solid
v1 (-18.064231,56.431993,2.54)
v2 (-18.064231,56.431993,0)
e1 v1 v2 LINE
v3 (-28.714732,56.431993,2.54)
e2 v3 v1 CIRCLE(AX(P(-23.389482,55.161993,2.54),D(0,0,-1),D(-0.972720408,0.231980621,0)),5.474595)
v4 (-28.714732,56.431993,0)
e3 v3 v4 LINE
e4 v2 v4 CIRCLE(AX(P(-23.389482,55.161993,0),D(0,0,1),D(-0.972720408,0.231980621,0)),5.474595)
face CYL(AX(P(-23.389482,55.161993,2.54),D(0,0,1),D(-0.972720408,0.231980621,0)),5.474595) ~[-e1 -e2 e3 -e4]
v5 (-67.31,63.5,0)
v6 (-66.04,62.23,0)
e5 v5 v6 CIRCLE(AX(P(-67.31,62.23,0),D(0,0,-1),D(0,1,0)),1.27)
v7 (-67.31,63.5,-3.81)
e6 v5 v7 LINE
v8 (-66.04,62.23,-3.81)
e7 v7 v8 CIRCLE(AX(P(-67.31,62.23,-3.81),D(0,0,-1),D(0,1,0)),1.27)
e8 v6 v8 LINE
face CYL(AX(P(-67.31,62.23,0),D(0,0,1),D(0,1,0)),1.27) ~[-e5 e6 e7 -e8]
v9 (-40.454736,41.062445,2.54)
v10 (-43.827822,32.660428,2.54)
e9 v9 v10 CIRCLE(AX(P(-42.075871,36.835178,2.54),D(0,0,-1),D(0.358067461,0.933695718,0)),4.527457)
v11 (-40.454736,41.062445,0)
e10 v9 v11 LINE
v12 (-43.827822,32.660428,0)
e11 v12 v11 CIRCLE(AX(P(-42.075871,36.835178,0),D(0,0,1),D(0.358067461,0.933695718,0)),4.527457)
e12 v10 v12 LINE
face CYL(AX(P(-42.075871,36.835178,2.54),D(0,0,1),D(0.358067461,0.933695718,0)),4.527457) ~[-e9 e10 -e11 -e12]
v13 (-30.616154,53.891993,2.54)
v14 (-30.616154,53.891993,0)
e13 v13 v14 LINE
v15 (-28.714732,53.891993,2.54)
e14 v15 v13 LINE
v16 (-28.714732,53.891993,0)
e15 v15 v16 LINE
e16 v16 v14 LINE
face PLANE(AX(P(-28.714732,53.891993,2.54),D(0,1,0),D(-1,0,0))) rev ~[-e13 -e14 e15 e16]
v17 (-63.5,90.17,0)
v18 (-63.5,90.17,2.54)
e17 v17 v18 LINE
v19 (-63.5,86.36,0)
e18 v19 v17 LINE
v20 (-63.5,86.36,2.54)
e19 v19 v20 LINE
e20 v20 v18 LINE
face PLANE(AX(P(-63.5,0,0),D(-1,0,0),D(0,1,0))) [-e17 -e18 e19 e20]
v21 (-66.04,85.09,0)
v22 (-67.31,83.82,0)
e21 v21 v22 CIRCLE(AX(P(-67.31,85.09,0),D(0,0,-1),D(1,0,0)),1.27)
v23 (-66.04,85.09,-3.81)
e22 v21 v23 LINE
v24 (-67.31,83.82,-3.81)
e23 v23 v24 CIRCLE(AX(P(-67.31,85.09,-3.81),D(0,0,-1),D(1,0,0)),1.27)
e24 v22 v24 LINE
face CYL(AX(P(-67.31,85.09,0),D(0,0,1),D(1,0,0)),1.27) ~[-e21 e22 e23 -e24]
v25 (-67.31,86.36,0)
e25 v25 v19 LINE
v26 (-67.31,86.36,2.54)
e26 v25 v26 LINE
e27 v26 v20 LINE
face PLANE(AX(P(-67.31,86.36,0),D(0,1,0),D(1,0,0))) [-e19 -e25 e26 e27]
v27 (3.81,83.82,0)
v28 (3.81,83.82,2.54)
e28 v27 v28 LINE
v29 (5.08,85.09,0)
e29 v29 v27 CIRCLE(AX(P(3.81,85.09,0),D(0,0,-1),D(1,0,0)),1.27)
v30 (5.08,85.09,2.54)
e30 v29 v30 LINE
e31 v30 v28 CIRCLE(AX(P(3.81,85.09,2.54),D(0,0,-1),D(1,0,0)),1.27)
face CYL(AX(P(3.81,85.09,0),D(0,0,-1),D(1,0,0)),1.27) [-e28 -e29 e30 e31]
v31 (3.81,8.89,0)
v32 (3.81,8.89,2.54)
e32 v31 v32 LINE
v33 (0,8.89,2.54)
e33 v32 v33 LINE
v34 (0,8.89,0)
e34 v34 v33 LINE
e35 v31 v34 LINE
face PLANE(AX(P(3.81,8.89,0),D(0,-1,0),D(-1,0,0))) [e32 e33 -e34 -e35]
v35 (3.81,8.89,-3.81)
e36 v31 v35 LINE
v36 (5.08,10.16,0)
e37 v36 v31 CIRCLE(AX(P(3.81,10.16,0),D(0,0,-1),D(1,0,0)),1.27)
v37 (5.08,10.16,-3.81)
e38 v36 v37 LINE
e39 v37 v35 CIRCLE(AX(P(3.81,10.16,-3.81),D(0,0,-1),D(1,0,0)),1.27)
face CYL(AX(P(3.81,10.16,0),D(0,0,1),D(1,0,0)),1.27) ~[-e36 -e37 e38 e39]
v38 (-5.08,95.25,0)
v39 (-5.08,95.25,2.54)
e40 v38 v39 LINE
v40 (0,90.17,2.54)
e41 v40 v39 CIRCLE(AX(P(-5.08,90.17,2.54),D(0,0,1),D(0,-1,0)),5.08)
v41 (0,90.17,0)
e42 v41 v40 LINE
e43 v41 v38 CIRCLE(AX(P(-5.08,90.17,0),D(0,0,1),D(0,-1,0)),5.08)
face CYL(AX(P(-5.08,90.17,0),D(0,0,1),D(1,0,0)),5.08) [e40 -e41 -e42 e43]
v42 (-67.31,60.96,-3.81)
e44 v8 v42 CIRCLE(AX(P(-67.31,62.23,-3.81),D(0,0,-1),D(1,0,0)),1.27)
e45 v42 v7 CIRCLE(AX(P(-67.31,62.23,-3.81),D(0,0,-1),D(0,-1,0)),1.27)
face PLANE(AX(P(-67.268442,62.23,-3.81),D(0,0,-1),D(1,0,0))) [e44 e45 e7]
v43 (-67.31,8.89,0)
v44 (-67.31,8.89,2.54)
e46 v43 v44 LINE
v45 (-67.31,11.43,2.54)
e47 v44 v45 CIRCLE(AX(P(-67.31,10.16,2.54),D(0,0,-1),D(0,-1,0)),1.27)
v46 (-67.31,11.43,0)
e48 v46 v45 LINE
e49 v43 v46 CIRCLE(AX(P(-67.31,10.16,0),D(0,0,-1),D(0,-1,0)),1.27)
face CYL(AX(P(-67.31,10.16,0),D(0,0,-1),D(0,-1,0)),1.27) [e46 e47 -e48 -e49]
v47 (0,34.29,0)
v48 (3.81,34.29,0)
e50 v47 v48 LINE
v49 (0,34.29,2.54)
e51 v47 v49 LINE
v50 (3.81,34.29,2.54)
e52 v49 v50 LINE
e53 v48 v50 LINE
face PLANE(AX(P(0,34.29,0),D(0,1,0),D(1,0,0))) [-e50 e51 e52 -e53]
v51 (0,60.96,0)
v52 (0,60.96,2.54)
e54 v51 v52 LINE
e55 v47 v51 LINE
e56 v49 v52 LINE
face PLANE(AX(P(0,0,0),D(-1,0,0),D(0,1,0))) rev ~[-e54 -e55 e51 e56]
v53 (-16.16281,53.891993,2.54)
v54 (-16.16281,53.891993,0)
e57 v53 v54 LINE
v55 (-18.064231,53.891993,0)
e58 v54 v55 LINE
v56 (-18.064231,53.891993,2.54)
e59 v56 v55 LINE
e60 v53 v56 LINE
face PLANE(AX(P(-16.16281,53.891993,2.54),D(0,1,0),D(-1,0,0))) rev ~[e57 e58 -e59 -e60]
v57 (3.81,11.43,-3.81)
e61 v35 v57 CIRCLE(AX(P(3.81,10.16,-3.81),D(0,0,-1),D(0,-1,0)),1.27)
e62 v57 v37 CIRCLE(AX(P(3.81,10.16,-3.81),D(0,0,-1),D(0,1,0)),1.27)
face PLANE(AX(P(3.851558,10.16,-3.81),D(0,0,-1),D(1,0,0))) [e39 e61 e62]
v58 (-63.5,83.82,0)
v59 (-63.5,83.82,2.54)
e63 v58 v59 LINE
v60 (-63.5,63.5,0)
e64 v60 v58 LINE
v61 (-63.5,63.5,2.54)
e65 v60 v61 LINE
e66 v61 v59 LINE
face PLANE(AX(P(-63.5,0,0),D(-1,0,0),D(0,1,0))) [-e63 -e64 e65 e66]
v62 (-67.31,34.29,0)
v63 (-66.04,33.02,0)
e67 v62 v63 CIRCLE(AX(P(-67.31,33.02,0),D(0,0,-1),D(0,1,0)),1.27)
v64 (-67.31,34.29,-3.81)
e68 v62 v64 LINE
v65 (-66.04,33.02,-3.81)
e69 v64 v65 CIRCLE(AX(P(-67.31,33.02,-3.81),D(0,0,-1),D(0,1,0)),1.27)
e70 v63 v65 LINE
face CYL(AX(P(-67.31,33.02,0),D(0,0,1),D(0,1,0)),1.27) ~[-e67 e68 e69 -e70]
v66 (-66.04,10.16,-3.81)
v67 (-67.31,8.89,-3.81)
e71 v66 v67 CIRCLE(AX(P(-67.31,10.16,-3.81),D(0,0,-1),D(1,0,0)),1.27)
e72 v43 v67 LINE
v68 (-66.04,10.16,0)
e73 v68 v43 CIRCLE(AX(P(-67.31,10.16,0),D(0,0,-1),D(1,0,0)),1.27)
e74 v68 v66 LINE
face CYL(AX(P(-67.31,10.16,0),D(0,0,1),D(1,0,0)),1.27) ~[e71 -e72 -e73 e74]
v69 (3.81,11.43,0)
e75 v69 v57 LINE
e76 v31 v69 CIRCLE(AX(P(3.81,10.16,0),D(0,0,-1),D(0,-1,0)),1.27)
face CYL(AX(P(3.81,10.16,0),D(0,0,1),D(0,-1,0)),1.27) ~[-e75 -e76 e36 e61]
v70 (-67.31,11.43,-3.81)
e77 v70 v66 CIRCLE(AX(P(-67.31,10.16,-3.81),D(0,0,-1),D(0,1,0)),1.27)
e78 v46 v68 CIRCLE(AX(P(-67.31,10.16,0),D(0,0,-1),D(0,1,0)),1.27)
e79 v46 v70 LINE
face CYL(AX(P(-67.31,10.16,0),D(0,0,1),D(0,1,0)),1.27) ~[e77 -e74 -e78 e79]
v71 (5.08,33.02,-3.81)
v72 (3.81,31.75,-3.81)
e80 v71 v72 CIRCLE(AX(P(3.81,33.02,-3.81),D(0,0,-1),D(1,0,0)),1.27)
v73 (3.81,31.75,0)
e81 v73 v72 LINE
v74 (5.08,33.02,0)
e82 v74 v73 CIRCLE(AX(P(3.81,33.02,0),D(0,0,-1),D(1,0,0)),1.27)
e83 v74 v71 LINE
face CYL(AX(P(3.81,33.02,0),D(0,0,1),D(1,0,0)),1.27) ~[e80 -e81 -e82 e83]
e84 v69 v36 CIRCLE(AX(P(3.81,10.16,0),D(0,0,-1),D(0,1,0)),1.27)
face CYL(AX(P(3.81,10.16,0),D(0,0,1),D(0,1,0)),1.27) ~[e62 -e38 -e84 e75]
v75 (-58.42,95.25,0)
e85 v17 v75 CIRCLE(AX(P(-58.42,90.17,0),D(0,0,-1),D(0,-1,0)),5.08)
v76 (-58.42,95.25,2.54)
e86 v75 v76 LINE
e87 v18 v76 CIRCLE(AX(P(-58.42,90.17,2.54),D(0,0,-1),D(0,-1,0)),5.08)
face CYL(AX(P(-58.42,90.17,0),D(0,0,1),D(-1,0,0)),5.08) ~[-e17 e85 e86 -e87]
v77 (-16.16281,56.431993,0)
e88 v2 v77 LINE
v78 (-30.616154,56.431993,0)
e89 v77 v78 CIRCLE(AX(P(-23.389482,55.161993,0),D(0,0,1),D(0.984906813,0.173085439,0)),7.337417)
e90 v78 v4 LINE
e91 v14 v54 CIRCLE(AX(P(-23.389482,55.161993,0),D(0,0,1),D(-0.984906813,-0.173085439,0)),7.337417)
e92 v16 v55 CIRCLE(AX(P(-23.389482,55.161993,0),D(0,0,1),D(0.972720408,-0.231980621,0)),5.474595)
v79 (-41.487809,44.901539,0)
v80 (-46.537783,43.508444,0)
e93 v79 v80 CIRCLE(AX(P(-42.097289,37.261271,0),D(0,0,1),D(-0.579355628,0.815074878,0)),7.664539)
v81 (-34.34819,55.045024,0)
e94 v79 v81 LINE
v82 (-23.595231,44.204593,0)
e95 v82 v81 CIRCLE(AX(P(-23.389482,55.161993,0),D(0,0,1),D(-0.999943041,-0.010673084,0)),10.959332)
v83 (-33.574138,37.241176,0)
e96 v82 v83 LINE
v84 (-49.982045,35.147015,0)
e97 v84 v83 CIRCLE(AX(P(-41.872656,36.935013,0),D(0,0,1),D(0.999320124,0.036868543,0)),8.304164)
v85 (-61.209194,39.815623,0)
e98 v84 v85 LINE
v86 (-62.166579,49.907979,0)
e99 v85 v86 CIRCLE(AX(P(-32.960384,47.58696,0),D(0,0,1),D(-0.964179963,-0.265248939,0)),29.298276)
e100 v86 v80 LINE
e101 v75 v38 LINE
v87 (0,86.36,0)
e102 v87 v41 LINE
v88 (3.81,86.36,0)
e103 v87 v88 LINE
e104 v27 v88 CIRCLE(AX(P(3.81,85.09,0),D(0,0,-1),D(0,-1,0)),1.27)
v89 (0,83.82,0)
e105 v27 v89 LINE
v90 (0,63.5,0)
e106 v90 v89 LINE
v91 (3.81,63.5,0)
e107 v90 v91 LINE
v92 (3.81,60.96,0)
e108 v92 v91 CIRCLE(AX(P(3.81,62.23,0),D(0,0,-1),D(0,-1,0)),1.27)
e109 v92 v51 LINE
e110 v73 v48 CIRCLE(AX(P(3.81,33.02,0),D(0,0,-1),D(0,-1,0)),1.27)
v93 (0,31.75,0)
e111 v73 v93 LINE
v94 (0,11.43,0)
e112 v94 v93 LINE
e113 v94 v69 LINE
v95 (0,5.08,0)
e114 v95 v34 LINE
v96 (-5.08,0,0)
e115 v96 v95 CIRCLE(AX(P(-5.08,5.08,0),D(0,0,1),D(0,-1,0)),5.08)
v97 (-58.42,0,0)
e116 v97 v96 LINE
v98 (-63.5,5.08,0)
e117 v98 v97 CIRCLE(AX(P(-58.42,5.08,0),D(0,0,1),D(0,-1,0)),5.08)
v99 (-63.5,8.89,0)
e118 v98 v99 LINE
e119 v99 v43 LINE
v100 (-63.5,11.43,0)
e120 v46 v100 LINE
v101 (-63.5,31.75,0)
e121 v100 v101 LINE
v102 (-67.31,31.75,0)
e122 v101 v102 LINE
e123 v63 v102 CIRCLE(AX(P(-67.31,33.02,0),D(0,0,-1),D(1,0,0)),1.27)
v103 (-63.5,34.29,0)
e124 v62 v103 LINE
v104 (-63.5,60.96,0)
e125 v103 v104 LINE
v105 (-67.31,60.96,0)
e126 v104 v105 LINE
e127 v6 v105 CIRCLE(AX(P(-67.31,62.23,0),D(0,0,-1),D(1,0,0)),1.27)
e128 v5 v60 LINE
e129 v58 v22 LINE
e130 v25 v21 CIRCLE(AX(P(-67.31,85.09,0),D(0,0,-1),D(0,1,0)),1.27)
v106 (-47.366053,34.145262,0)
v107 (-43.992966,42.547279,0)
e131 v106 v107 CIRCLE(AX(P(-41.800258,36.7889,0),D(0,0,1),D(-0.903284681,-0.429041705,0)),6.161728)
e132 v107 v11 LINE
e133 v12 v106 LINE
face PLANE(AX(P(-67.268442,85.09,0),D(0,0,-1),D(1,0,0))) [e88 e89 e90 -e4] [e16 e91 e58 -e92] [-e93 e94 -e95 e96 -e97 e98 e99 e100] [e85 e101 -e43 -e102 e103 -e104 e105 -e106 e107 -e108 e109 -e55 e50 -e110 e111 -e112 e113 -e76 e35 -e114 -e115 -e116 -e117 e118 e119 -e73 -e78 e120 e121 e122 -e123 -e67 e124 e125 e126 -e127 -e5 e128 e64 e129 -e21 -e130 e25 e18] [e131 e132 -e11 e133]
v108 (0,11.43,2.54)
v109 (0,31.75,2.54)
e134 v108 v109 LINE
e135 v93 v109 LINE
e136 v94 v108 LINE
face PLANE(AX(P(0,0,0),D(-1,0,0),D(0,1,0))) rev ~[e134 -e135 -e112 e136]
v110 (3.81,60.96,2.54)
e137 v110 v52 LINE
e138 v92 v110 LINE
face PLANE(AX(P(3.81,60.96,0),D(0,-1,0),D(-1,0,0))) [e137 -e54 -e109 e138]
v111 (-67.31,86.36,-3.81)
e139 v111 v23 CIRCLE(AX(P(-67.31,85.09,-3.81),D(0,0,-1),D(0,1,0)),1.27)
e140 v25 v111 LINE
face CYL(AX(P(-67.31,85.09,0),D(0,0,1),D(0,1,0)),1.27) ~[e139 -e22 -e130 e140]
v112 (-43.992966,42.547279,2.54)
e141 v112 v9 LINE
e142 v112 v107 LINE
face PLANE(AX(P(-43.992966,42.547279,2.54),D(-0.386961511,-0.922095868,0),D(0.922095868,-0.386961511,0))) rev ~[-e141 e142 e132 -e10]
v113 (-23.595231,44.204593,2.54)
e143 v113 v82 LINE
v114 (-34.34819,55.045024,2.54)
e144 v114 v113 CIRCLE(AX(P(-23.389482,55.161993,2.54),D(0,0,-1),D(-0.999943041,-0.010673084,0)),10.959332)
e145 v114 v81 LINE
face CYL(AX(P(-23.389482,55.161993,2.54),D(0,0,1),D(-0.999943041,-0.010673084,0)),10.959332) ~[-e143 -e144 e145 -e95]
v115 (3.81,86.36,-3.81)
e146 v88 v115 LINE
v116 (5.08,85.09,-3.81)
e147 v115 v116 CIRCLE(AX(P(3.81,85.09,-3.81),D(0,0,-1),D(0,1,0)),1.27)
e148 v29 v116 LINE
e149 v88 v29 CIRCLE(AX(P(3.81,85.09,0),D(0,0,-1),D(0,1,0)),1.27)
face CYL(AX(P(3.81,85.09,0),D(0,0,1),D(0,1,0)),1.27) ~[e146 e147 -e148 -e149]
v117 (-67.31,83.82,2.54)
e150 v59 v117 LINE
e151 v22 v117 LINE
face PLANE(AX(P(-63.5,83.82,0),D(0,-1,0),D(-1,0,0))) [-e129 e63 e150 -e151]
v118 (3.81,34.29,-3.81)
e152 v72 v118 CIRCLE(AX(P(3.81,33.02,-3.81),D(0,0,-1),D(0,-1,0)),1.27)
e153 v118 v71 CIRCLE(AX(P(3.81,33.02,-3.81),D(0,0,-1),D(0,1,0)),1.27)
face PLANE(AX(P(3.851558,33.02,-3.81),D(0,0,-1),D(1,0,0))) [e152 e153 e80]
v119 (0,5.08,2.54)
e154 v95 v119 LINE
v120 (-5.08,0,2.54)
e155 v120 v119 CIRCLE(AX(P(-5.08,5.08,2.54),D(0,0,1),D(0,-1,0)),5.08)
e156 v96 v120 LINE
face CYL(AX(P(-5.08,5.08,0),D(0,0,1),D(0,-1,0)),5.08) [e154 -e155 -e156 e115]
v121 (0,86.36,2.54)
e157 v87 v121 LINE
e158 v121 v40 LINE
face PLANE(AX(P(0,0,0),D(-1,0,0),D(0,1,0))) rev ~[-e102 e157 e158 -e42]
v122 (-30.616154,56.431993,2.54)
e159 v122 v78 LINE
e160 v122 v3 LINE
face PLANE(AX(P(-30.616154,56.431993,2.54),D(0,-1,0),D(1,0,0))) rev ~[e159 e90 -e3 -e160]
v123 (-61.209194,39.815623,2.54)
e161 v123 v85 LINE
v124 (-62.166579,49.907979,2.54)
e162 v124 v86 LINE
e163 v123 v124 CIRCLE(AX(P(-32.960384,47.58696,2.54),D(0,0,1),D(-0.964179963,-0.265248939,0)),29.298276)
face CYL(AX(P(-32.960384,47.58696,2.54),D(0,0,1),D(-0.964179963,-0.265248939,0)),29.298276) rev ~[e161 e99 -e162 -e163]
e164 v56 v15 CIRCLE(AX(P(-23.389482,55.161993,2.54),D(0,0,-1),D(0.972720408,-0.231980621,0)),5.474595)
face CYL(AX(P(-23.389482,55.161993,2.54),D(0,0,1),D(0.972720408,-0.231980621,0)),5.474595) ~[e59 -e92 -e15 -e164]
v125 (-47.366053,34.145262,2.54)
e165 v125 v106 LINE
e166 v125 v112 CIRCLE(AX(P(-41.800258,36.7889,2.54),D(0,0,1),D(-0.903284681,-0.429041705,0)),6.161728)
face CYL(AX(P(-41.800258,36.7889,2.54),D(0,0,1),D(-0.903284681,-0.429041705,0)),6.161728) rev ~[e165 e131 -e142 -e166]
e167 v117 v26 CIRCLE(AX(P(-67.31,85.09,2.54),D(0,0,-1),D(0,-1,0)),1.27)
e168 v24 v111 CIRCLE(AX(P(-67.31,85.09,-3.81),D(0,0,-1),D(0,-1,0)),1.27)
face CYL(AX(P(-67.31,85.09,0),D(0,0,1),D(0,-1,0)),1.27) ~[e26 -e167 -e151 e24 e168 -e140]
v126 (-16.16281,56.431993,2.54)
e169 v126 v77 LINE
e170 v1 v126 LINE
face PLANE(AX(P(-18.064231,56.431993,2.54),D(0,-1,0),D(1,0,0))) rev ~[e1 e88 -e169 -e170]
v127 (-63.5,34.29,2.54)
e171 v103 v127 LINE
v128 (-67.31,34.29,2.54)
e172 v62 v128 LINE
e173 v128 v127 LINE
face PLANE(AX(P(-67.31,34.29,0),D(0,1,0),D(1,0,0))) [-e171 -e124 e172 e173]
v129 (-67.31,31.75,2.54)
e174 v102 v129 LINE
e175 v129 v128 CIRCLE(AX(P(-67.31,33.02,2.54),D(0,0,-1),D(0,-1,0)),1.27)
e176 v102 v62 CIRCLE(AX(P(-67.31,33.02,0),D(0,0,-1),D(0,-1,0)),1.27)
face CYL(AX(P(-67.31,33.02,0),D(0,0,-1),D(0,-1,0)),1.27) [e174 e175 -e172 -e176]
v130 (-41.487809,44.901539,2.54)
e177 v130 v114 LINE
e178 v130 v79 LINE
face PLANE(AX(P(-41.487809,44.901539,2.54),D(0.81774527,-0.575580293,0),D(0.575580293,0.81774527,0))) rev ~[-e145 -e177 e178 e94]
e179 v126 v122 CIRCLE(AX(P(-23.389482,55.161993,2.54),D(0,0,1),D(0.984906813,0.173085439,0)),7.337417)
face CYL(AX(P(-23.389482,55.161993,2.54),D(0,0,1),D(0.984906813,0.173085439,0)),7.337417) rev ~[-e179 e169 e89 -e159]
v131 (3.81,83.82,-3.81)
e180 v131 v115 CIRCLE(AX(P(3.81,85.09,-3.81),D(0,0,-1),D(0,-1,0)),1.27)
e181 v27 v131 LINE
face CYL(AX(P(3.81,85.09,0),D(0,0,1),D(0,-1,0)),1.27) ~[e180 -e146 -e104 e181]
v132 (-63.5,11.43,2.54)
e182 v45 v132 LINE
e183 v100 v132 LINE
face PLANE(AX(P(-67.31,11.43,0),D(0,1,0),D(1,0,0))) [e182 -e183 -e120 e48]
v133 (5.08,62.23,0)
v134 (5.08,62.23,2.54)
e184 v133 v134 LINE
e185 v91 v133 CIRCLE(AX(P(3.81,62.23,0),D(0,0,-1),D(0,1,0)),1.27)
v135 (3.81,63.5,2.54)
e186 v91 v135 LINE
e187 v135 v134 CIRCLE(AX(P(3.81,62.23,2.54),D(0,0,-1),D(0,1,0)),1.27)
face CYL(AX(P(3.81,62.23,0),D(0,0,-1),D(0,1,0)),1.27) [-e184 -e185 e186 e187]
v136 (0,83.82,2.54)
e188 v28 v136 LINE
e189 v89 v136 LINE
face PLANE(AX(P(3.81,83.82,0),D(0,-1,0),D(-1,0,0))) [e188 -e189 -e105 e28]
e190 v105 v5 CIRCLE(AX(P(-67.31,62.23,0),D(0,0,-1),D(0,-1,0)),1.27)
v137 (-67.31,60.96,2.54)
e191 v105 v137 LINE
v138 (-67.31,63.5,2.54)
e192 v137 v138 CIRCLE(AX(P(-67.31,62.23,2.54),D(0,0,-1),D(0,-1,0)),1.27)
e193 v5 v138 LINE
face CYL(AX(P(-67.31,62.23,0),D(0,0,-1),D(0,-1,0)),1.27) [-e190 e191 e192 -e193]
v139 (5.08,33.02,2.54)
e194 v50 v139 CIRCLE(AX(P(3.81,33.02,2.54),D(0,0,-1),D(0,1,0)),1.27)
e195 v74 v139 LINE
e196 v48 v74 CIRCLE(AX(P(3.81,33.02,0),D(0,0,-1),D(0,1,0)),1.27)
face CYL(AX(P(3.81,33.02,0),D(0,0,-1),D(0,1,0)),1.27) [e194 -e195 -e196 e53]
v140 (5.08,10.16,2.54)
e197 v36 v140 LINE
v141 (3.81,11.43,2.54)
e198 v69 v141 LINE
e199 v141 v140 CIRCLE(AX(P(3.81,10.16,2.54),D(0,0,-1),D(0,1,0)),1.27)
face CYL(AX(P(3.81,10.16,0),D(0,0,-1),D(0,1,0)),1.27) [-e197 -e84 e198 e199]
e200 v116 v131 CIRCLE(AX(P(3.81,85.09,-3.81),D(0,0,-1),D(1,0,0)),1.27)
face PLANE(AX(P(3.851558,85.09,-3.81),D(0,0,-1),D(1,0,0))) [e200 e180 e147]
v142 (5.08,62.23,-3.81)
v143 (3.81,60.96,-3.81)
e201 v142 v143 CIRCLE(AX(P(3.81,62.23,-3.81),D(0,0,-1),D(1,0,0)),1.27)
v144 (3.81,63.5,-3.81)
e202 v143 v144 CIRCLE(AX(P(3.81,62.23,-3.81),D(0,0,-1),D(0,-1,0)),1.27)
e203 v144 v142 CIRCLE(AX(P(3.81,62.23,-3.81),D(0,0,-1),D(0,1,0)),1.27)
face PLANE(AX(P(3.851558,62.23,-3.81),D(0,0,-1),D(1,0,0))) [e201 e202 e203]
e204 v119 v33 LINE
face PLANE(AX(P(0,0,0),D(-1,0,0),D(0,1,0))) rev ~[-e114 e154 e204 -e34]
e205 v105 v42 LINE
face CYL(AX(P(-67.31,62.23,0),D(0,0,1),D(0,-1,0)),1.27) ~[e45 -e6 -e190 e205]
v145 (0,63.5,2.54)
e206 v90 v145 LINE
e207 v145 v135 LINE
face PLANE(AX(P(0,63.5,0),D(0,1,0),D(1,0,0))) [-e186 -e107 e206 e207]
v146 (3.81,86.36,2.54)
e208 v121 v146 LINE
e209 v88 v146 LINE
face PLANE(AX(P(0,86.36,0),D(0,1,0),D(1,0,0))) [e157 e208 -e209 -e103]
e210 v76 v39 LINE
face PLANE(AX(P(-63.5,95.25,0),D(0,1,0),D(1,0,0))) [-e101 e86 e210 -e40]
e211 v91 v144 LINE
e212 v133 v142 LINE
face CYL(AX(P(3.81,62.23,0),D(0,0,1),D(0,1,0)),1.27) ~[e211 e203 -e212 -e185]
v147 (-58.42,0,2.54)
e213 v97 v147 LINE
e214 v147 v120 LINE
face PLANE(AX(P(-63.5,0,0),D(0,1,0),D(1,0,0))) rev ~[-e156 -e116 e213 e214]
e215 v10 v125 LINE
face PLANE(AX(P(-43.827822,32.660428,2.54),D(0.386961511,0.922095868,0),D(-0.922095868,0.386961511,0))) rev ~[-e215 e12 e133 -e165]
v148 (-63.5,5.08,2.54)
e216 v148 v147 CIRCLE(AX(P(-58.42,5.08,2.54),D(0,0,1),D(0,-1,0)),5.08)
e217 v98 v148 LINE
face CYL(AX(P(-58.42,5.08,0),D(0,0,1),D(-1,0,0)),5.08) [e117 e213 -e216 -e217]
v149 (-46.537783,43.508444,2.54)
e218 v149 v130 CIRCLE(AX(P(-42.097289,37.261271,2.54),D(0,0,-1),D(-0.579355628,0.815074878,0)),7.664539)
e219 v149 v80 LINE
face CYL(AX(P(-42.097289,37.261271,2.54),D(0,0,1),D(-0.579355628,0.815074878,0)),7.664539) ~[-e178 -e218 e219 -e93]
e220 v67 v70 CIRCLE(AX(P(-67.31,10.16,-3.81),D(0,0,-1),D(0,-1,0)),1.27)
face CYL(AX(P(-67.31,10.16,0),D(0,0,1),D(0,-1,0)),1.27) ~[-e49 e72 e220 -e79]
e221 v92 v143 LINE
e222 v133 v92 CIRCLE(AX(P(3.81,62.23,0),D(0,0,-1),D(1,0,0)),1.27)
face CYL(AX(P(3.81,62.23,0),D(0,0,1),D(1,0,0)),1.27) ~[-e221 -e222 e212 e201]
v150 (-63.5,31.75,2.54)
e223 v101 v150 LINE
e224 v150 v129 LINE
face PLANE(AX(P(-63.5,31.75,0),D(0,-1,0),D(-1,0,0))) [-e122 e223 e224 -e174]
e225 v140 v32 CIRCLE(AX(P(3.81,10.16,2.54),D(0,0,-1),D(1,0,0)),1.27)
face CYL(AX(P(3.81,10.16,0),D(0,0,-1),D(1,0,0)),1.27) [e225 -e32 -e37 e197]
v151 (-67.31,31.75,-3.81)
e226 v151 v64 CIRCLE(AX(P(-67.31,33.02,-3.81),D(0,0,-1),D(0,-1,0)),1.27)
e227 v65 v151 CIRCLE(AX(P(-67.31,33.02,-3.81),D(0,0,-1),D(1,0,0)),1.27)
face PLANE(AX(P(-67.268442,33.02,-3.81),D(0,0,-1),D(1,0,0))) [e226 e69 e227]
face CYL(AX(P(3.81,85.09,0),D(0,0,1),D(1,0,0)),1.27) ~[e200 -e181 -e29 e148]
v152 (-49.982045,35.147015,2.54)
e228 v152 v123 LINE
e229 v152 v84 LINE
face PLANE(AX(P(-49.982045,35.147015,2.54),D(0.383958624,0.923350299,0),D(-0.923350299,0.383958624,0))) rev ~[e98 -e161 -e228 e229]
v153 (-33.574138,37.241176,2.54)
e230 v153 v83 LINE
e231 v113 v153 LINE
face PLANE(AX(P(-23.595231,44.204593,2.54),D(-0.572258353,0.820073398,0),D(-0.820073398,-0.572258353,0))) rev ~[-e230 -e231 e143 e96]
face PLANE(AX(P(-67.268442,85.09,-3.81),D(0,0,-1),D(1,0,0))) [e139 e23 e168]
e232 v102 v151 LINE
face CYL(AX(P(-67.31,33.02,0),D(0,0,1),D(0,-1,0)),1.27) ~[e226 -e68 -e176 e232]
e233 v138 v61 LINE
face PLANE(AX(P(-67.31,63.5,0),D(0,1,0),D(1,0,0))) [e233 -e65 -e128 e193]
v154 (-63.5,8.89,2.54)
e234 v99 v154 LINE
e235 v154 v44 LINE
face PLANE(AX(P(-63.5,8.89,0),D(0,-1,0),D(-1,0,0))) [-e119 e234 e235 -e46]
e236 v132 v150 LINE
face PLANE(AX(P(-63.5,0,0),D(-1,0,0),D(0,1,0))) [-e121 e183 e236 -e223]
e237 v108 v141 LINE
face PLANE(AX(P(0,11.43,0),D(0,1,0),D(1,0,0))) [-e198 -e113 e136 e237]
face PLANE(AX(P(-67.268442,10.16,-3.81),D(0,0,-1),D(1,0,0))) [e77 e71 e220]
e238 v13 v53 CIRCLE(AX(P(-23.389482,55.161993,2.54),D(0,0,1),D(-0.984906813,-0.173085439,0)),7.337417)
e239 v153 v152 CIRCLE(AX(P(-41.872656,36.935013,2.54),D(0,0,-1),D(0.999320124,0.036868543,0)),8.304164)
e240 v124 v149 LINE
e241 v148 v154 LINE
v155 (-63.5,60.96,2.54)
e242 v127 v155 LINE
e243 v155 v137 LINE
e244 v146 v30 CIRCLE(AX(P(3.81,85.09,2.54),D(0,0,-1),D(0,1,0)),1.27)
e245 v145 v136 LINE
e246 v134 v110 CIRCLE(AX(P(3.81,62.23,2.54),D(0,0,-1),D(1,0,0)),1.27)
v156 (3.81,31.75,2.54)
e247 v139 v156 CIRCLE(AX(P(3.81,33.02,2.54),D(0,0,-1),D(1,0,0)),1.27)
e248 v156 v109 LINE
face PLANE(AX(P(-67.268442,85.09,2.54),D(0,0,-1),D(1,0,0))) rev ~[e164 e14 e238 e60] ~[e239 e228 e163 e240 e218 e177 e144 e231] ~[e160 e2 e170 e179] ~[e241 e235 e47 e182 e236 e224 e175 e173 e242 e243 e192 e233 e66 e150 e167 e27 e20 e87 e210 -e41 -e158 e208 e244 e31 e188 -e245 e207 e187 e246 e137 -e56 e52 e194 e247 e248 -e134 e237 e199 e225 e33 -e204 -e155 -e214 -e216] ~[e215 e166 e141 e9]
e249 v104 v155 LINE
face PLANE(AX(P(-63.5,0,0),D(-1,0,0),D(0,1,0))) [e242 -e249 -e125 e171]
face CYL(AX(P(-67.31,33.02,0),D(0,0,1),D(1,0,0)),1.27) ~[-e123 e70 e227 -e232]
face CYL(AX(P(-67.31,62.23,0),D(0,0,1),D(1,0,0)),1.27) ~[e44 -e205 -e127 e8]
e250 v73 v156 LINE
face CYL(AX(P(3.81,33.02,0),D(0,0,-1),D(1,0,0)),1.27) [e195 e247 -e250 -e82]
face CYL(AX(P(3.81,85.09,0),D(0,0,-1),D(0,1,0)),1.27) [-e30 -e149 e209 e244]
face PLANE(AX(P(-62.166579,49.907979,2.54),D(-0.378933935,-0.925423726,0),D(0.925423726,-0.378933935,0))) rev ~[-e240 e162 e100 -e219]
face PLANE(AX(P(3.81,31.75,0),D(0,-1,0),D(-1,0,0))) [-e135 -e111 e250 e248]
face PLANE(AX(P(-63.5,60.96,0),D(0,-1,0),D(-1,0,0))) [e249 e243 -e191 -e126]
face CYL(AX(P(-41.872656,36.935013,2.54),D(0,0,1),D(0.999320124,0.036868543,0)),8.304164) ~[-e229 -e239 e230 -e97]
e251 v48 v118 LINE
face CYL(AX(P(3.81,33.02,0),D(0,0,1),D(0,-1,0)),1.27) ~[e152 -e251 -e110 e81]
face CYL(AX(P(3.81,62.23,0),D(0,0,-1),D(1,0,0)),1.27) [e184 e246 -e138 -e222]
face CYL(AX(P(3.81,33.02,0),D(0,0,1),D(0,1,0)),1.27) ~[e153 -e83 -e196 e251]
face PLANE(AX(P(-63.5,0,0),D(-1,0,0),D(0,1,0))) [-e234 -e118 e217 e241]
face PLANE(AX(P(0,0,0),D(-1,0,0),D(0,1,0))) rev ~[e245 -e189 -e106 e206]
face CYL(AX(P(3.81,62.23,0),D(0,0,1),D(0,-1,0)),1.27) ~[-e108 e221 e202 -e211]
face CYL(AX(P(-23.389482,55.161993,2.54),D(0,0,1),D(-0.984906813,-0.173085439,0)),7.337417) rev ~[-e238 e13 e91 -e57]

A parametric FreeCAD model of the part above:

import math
import FreeCAD as App
import Part
import Sketcher
Q = App.Units.Quantity


def edges_at(feature, points):
    """Names of the edges that pass closest to the given points."""
    edges = feature.Shape.Edges
    near = lambda p: min(range(len(edges)), key=lambda i: edges[i].distToShape(Part.Vertex(*p))[0])
    return sorted({f"Edge{near(p) + 1}" for p in points})

doc = App.newDocument("Part")
body = doc.addObject("PartDesign::Body", "Body")

# Sketch on XY plane
sketch1 = doc.addObject("Sketcher::SketchObject", "Sketch")
body.addObject(sketch1)
sketch1.AttachmentSupport = (doc.XY_Plane, [""])
sketch1.MapMode = "FlatFace"
sketch1.addGeometry([
    Part.LineSegment(App.Vector(-64, 95, 0), App.Vector(-64, 0, 0)),
    Part.LineSegment(App.Vector(-64, 0, 0), App.Vector(0, 0, 0)),
    Part.LineSegment(App.Vector(0, 0, 0), App.Vector(0, 95, 0)),
    Part.LineSegment(App.Vector(0, 95, 0), App.Vector(-64, 95, 0)),
], False)
sketch1.addConstraint([
    Sketcher.Constraint("Coincident", 0, 2, 1, 1),
    Sketcher.Constraint("Coincident", 1, 2, 2, 1),
    Sketcher.Constraint("Coincident", 2, 2, 3, 1),
    Sketcher.Constraint("Coincident", 3, 2, 0, 1),
    Sketcher.Constraint("Vertical", 0),
    Sketcher.Constraint("Horizontal", 1),
    Sketcher.Constraint("Vertical", 2),
    Sketcher.Constraint("Horizontal", 3),
    Sketcher.Constraint("Coincident", 1, 2, -1, 1),
    Sketcher.Constraint("DistanceX", 1, 1, 1, 2, Q("2.5 in")),
    Sketcher.Constraint("DistanceY", 0, 2, 0, 1, Q("3.75 in")),
])
pad1 = doc.addObject("PartDesign::Pad", "Pad")
body.addObject(pad1)
pad1.Profile = sketch1
pad1.Length = Q("0.1 in")
doc.recompute()

fillet = doc.addObject("PartDesign::Fillet", "Fillet")
body.addObject(fillet)
fillet.Base = (pad1, edges_at(pad1, [
    (-63.5, 0, 1.27),
    (0, 0, 1.27),
    (0, 95.25, 1.27),
    (-63.5, 95.25, 1.27),
]))
fillet.Radius = Q("0.2 in")

# Sketch on XY plane
sketch2 = doc.addObject("Sketcher::SketchObject", "Sketch001")
body.addObject(sketch2)
sketch2.AttachmentSupport = (doc.XY_Plane, [""])
sketch2.MapMode = "FlatFace"
sketch2.AttachmentOffset = App.Placement(App.Vector(0, 0, 0.1 * 25.4), App.Rotation())
sketch2.addGeometry([
    Part.ArcOfCircle(Part.Circle(App.Vector(-23.389482, 55.161993, 0), App.Vector(0, 0, 1), 5.474595), math.radians(13.413707), math.radians(166.586293)),  # 0
    Part.LineSegment(App.Vector(-18.064231, 56.431993, 0), App.Vector(-16.16281, 56.431993, 0)),  # 1
    Part.ArcOfCircle(Part.Circle(App.Vector(-23.389482, 55.161993, 0), App.Vector(0, 0, 1), 7.337417), math.radians(9.967262), math.radians(170.032738)),  # 2
    Part.LineSegment(App.Vector(-30.616154, 56.431993, 0), App.Vector(-28.714732, 56.431993, 0)),  # 3
    Part.LineSegment(App.Vector(-16.16281, 53.891993, 0), App.Vector(-18.064231, 53.891993, 0)),  # 4
    Part.ArcOfCircle(Part.Circle(App.Vector(-23.389482, 55.161993, 0), App.Vector(0, 0, 1), 5.474595), math.radians(-166.586293), math.radians(-13.413707)),  # 5
    Part.LineSegment(App.Vector(-28.714732, 53.891993, 0), App.Vector(-30.616154, 53.891993, 0)),  # 6
    Part.ArcOfCircle(Part.Circle(App.Vector(-23.389482, 55.161993, 0), App.Vector(0, 0, 1), 7.337417), math.radians(-170.032738), math.radians(-9.967262)),  # 7
    Part.ArcOfCircle(Part.Circle(App.Vector(-32.960384, 47.58696, 0), App.Vector(0, 0, 1), 29.298276), math.radians(-164.618255), math.radians(175.456249)),  # 8
    Part.LineSegment(App.Vector(-62.166579, 49.907979, 0), App.Vector(-46.537783, 43.508444, 0)),  # 9
    Part.ArcOfCircle(Part.Circle(App.Vector(-42.097289, 37.261271, 0), App.Vector(0, 0, 1), 7.664539), math.radians(85.439056), math.radians(125.405234)),  # 10
    Part.LineSegment(App.Vector(-41.487809, 44.901539, 0), App.Vector(-34.34819, 55.045024, 0)),  # 11
    Part.ArcOfCircle(Part.Circle(App.Vector(-23.389482, 55.161993, 0), App.Vector(0, 0, 1), 10.959332), math.radians(-91.075725), math.radians(180.611534)),  # 12
    Part.LineSegment(App.Vector(-23.595231, 44.204593, 0), App.Vector(-33.574138, 37.241176, 0)),  # 13
    Part.ArcOfCircle(Part.Circle(App.Vector(-41.872656, 36.935013, 0), App.Vector(0, 0, 1), 8.304164), math.radians(-167.566081), math.radians(2.112891)),  # 14
    Part.LineSegment(App.Vector(-49.982045, 35.147015, 0), App.Vector(-61.209194, 39.815623, 0)),  # 15
    Part.ArcOfCircle(Part.Circle(App.Vector(-41.800258, 36.7889, 0), App.Vector(0, 0, 1), 6.161728), math.radians(-154.59324), math.radians(110.846113)),  # 16
    Part.LineSegment(App.Vector(-43.992966, 42.547279, 0), App.Vector(-40.454736, 41.062445, 0)),  # 17
    Part.ArcOfCircle(Part.Circle(App.Vector(-42.075871, 36.835178, 0), App.Vector(0, 0, 1), 4.527457), math.radians(-112.765567), math.radians(69.01844)),  # 18
    Part.LineSegment(App.Vector(-43.827822, 32.660428, 0), App.Vector(-47.366053, 34.145262, 0)),  # 19
], False)
sketch2.addConstraint([
    Sketcher.Constraint("Coincident", 0, 1, 1, 1),
    Sketcher.Constraint("Coincident", 1, 2, 2, 1),
    Sketcher.Constraint("Coincident", 2, 2, 3, 1),
    Sketcher.Constraint("Coincident", 3, 2, 0, 2),
    Sketcher.Constraint("Coincident", 4, 2, 5, 2),
    Sketcher.Constraint("Coincident", 5, 1, 6, 1),
    Sketcher.Constraint("Coincident", 6, 2, 7, 1),
    Sketcher.Constraint("Coincident", 7, 2, 4, 1),
    Sketcher.Constraint("Coincident", 8, 2, 9, 1),
    Sketcher.Constraint("Coincident", 9, 2, 10, 2),
    Sketcher.Constraint("Coincident", 10, 1, 11, 1),
    Sketcher.Constraint("Coincident", 11, 2, 12, 2),
    Sketcher.Constraint("Coincident", 12, 1, 13, 1),
    Sketcher.Constraint("Coincident", 13, 2, 14, 2),
    Sketcher.Constraint("Coincident", 14, 1, 15, 1),
    Sketcher.Constraint("Coincident", 15, 2, 8, 1),
    Sketcher.Constraint("Coincident", 16, 2, 17, 1),
    Sketcher.Constraint("Coincident", 17, 2, 18, 2),
    Sketcher.Constraint("Tangent", 18, 1, 19, 1),
    Sketcher.Constraint("Coincident", 19, 2, 16, 1),
    Sketcher.Constraint("Horizontal", 1),
    Sketcher.Constraint("Horizontal", 3),
    Sketcher.Constraint("Horizontal", 4),
    Sketcher.Constraint("Horizontal", 6),
    Sketcher.Constraint("Coincident", 2, 3, 0, 3),
    Sketcher.Constraint("Coincident", 5, 3, 0, 3),
    Sketcher.Constraint("Coincident", 7, 3, 0, 3),
    Sketcher.Constraint("Coincident", 12, 3, 0, 3),
    Sketcher.Constraint("Equal", 0, 5),
    Sketcher.Constraint("Equal", 2, 7),
    Sketcher.Constraint("Parallel", 17, 19),
    Sketcher.Constraint("Horizontal", 1, 2, 2, 2),
    Sketcher.Constraint("Horizontal", 4, 2, 5, 1),
    Sketcher.Constraint("Vertical", 0, 1, 4, 2),
    Sketcher.Constraint("Equal", 17, 19),
    Sketcher.Constraint("DistanceY", 4, 2, 0, 1, Q("0.1 in")),
    Sketcher.Constraint("Radius", 10, Q("7.664539 mm")),
    Sketcher.Constraint("Radius", 0, Q("5.474595 mm")),
    Sketcher.Constraint("Radius", 2, Q("7.337417 mm")),
    Sketcher.Constraint("Radius", 8, Q("29.298276 mm")),
    Sketcher.Constraint("Radius", 12, Q("10.959332 mm")),
    Sketcher.Constraint("Radius", 14, Q("8.304164 mm")),
    Sketcher.Constraint("Radius", 16, Q("6.161728 mm")),
    Sketcher.Constraint("Radius", 18, Q("4.527457 mm")),
    Sketcher.Constraint("DistanceY", -1, 1, 16, 3, Q("36.7889 mm")),
    Sketcher.Constraint("DistanceY", 18, 3, 8, 2, Q("13.072801 mm")),
    Sketcher.Constraint("DistanceX", 9, 2, 8, 3, Q("13.577399 mm")),
    Sketcher.Constraint("DistanceX", 5, 1, 12, 1, Q("5.119502 mm")),
    Sketcher.Constraint("DistanceY", 14, 1, 14, 3, Q("1.787998 mm")),
    Sketcher.Constraint("DistanceY", 18, 3, 16, 2, Q("5.712101 mm")),
    Sketcher.Constraint("Distance", 9, Q("16.88826 mm")),
    Sketcher.Constraint("Distance", 11, Q("12.404211 mm")),
    Sketcher.Constraint("Distance", 13, Q("12.16831 mm")),
    Sketcher.Constraint("Distance", 17, Q("3.837161 mm")),
    Sketcher.Constraint("DistanceX", 0, 3, -1, 1, Q("23.389482 mm")),
    Sketcher.Constraint("DistanceY", -1, 1, 8, 3, Q("47.58696 mm")),
    Sketcher.Constraint("DistanceX", 10, 3, -1, 1, Q("42.097289 mm")),
    Sketcher.Constraint("DistanceY", -1, 1, 10, 3, Q("37.261271 mm")),
    Sketcher.Constraint("DistanceX", 16, 3, -1, 1, Q("41.800258 mm")),
    Sketcher.Constraint("DistanceX", 18, 3, -1, 1, Q("42.075871 mm")),
    Sketcher.Constraint("DistanceX", 10, 1, -1, 1, Q("41.487809 mm")),
    Sketcher.Constraint("DistanceX", 11, 2, -1, 1, Q("34.34819 mm")),
    Sketcher.Constraint("DistanceX", 14, 3, 8, 3, Q("8.912272 mm")),
    Sketcher.Constraint("DistanceY", 14, 3, 0, 3, Q("18.22698 mm")),
    Sketcher.Constraint("DistanceX", 15, 2, 14, 1, Q("11.22715 mm")),
])
pocket1 = doc.addObject("PartDesign::Pocket", "Pocket")
body.addObject(pocket1)
pocket1.Profile = sketch2
pocket1.Type = "ThroughAll"

# Sketch on XY plane
sketch3 = doc.addObject("Sketcher::SketchObject", "Sketch002")
body.addObject(sketch3)
sketch3.AttachmentSupport = (doc.XY_Plane, [""])
sketch3.MapMode = "FlatFace"
sketch3.addGeometry([
    Part.LineSegment(App.Vector(-63.5, 86.4, 0), App.Vector(-63.5, 83.8, 0)),  # 0
    Part.LineSegment(App.Vector(-63.5, 83.8, 0), App.Vector(-67.3, 83.8, 0)),  # 1
    Part.ArcOfCircle(Part.Circle(App.Vector(-67.3, 85.1, 0), App.Vector(0, 0, 1), 1.3), math.radians(-90), math.radians(0)),  # 2
    Part.ArcOfCircle(Part.Circle(App.Vector(-67.3, 85.1, 0), App.Vector(0, 0, 1), 1.3), math.radians(0), math.radians(90)),  # 3
    Part.LineSegment(App.Vector(-67.3, 86.4, 0), App.Vector(-63.5, 86.4, 0)),  # 4
    Part.LineSegment(App.Vector(-63.5, 63.5, 0), App.Vector(-63.5, 61, 0)),  # 5
    Part.LineSegment(App.Vector(-63.5, 61, 0), App.Vector(-67.3, 61, 0)),  # 6
    Part.ArcOfCircle(Part.Circle(App.Vector(-67.3, 62.2, 0), App.Vector(0, 0, 1), 1.3), math.radians(-90), math.radians(0)),  # 7
    Part.ArcOfCircle(Part.Circle(App.Vector(-67.3, 62.2, 0), App.Vector(0, 0, 1), 1.3), math.radians(0), math.radians(90)),  # 8
    Part.LineSegment(App.Vector(-67.3, 63.5, 0), App.Vector(-63.5, 63.5, 0)),  # 9
    Part.LineSegment(App.Vector(-63.5, 34.3, 0), App.Vector(-63.5, 31.8, 0)),  # 10
    Part.LineSegment(App.Vector(-63.5, 31.8, 0), App.Vector(-67.3, 31.8, 0)),  # 11
    Part.ArcOfCircle(Part.Circle(App.Vector(-67.3, 33, 0), App.Vector(0, 0, 1), 1.3), math.radians(-90), math.radians(0)),  # 12
    Part.ArcOfCircle(Part.Circle(App.Vector(-67.3, 33, 0), App.Vector(0, 0, 1), 1.3), math.radians(0), math.radians(90)),  # 13
    Part.LineSegment(App.Vector(-67.3, 34.3, 0), App.Vector(-63.5, 34.3, 0)),  # 14
    Part.ArcOfCircle(Part.Circle(App.Vector(-67.3, 10.2, 0), App.Vector(0, 0, 1), 1.3), math.radians(-90), math.radians(0)),  # 15
    Part.ArcOfCircle(Part.Circle(App.Vector(-67.3, 10.2, 0), App.Vector(0, 0, 1), 1.3), math.radians(0), math.radians(90)),  # 16
    Part.LineSegment(App.Vector(-67.3, 11.4, 0), App.Vector(-63.5, 11.4, 0)),  # 17
    Part.LineSegment(App.Vector(-63.5, 11.4, 0), App.Vector(-63.5, 8.9, 0)),  # 18
    Part.LineSegment(App.Vector(-63.5, 8.9, 0), App.Vector(-67.3, 8.9, 0)),  # 19
    Part.LineSegment(App.Vector(3.8, 8.9, 0), App.Vector(0, 8.9, 0)),  # 20
    Part.LineSegment(App.Vector(0, 8.9, 0), App.Vector(0, 11.4, 0)),  # 21
    Part.LineSegment(App.Vector(0, 11.4, 0), App.Vector(3.8, 11.4, 0)),  # 22
    Part.ArcOfCircle(Part.Circle(App.Vector(3.8, 10.2, 0), App.Vector(0, 0, 1), 1.3), math.radians(90), math.radians(270)),  # 23
    Part.LineSegment(App.Vector(3.8, 31.8, 0), App.Vector(0, 31.8, 0)),  # 24
    Part.LineSegment(App.Vector(0, 31.8, 0), App.Vector(0, 34.3, 0)),  # 25
    Part.LineSegment(App.Vector(0, 34.3, 0), App.Vector(3.8, 34.3, 0)),  # 26
    Part.ArcOfCircle(Part.Circle(App.Vector(3.8, 33, 0), App.Vector(0, 0, 1), 1.3), math.radians(90), math.radians(270)),  # 27
    Part.LineSegment(App.Vector(3.8, 61, 0), App.Vector(0, 61, 0)),  # 28
    Part.LineSegment(App.Vector(0, 61, 0), App.Vector(0, 63.5, 0)),  # 29
    Part.LineSegment(App.Vector(0, 63.5, 0), App.Vector(3.8, 63.5, 0)),  # 30
    Part.ArcOfCircle(Part.Circle(App.Vector(3.8, 62.2, 0), App.Vector(0, 0, 1), 1.3), math.radians(90), math.radians(270)),  # 31
    Part.LineSegment(App.Vector(3.8, 83.8, 0), App.Vector(0, 83.8, 0)),  # 32
    Part.LineSegment(App.Vector(0, 83.8, 0), App.Vector(0, 86.4, 0)),  # 33
    Part.LineSegment(App.Vector(0, 86.4, 0), App.Vector(3.8, 86.4, 0)),  # 34
    Part.ArcOfCircle(Part.Circle(App.Vector(3.8, 85.1, 0), App.Vector(0, 0, 1), 1.3), math.radians(90), math.radians(270)),  # 35
], False)
sketch3.addConstraint([
    Sketcher.Constraint("Coincident", 0, 2, 1, 1),
    Sketcher.Constraint("Tangent", 1, 2, 2, 1),
    Sketcher.Constraint("Tangent", 2, 2, 3, 1),
    Sketcher.Constraint("Tangent", 3, 2, 4, 1),
    Sketcher.Constraint("Coincident", 4, 2, 0, 1),
    Sketcher.Constraint("Coincident", 5, 2, 6, 1),
    Sketcher.Constraint("Tangent", 6, 2, 7, 1),
    Sketcher.Constraint("Tangent", 7, 2, 8, 1),
    Sketcher.Constraint("Tangent", 8, 2, 9, 1),
    Sketcher.Constraint("Coincident", 9, 2, 5, 1),
    Sketcher.Constraint("Coincident", 10, 2, 11, 1),
    Sketcher.Constraint("Tangent", 11, 2, 12, 1),
    Sketcher.Constraint("Tangent", 12, 2, 13, 1),
    Sketcher.Constraint("Tangent", 13, 2, 14, 1),
    Sketcher.Constraint("Coincident", 14, 2, 10, 1),
    Sketcher.Constraint("Tangent", 15, 2, 16, 1),
    Sketcher.Constraint("Tangent", 16, 2, 17, 1),
    Sketcher.Constraint("Coincident", 17, 2, 18, 1),
    Sketcher.Constraint("Coincident", 18, 2, 19, 1),
    Sketcher.Constraint("Tangent", 19, 2, 15, 1),
    Sketcher.Constraint("Coincident", 20, 2, 21, 1),
    Sketcher.Constraint("Coincident", 21, 2, 22, 1),
    Sketcher.Constraint("Tangent", 22, 2, 23, 1),
    Sketcher.Constraint("Tangent", 23, 2, 20, 1),
    Sketcher.Constraint("Coincident", 24, 2, 25, 1),
    Sketcher.Constraint("Coincident", 25, 2, 26, 1),
    Sketcher.Constraint("Tangent", 26, 2, 27, 1),
    Sketcher.Constraint("Tangent", 27, 2, 24, 1),
    Sketcher.Constraint("Coincident", 28, 2, 29, 1),
    Sketcher.Constraint("Coincident", 29, 2, 30, 1),
    Sketcher.Constraint("Tangent", 30, 2, 31, 1),
    Sketcher.Constraint("Tangent", 31, 2, 28, 1),
    Sketcher.Constraint("Coincident", 32, 2, 33, 1),
    Sketcher.Constraint("Coincident", 33, 2, 34, 1),
    Sketcher.Constraint("Tangent", 34, 2, 35, 1),
    Sketcher.Constraint("Tangent", 35, 2, 32, 1),
    Sketcher.Constraint("Vertical", 0),
    Sketcher.Constraint("Horizontal", 1),
    Sketcher.Constraint("Horizontal", 4),
    Sketcher.Constraint("Vertical", 5),
    Sketcher.Constraint("Horizontal", 6),
    Sketcher.Constraint("Horizontal", 9),
    Sketcher.Constraint("Vertical", 10),
    Sketcher.Constraint("Horizontal", 11),
    Sketcher.Constraint("Horizontal", 14),
    Sketcher.Constraint("Horizontal", 17),
    Sketcher.Constraint("Vertical", 18),
    Sketcher.Constraint("Horizontal", 19),
    Sketcher.Constraint("Horizontal", 20),
    Sketcher.Constraint("Vertical", 21),
    Sketcher.Constraint("Horizontal", 22),
    Sketcher.Constraint("Horizontal", 24),
    Sketcher.Constraint("Vertical", 25),
    Sketcher.Constraint("Horizontal", 26),
    Sketcher.Constraint("Horizontal", 28),
    Sketcher.Constraint("Vertical", 29),
    Sketcher.Constraint("Horizontal", 30),
    Sketcher.Constraint("Horizontal", 32),
    Sketcher.Constraint("Vertical", 33),
    Sketcher.Constraint("Horizontal", 34),
    Sketcher.Constraint("Equal", 2, 3),
    Sketcher.Constraint("Equal", 3, 7),
    Sketcher.Constraint("Equal", 7, 8),
    Sketcher.Constraint("Equal", 8, 12),
    Sketcher.Constraint("Equal", 12, 13),
    Sketcher.Constraint("Equal", 13, 15),
    Sketcher.Constraint("Equal", 15, 16),
    Sketcher.Constraint("Equal", 16, 23),
    Sketcher.Constraint("Equal", 23, 27),
    Sketcher.Constraint("Equal", 27, 31),
    Sketcher.Constraint("Equal", 31, 35),
    Sketcher.Constraint("PointOnObject", 20, 2, -2),
    Sketcher.Constraint("PointOnObject", 24, 2, -2),
    Sketcher.Constraint("PointOnObject", 28, 2, -2),
    Sketcher.Constraint("PointOnObject", 32, 2, -2),
    Sketcher.Constraint("Horizontal", 16, 3, 23, 3),
    Sketcher.Constraint("Horizontal", 13, 3, 27, 3),
    Sketcher.Constraint("Horizontal", 8, 3, 31, 3),
    Sketcher.Constraint("Horizontal", 3, 3, 35, 3),
    Sketcher.Constraint("Horizontal", 35, 3, 2, 2),
    Sketcher.Constraint("Horizontal", 31, 3, 7, 2),
    Sketcher.Constraint("Horizontal", 27, 3, 12, 2),
    Sketcher.Constraint("Horizontal", 23, 3, 15, 2),
    Sketcher.Constraint("Vertical", 3, 3, 7, 3),
    Sketcher.Constraint("Vertical", 8, 3, 12, 3),
    Sketcher.Constraint("Vertical", 13, 3, 15, 3),
    Sketcher.Constraint("Vertical", 23, 3, 27, 3),
    Sketcher.Constraint("Vertical", 27, 3, 31, 3),
    Sketcher.Constraint("Vertical", 31, 3, 35, 3),
    Sketcher.Constraint("Vertical", 4, 2, 5, 2),
    Sketcher.Constraint("Vertical", 9, 2, 10, 2),
    Sketcher.Constraint("Vertical", 14, 2, 17, 2),
    Sketcher.Constraint("Equal", 19, 20),
    Sketcher.Constraint("Radius", 2, Q("0.05 in")),
    Sketcher.Constraint("DistanceY", 12, 3, 0, 2, Q("2 in")),
    Sketcher.Constraint("DistanceY", 21, 2, 31, 3, Q("2 in")),
    Sketcher.Constraint("DistanceX", 1, 2, 1, 1, Q("0.15 in")),
    Sketcher.Constraint("DistanceY", -1, 1, 12, 3, Q("1.3 in")),
    Sketcher.Constraint("DistanceY", -1, 1, 15, 3, Q("0.4 in")),
    Sketcher.Constraint("DistanceX", 0, 2, -1, 1, Q("2.5 in")),
])
pad2 = doc.addObject("PartDesign::Pad", "Pad001")
body.addObject(pad2)
pad2.Profile = sketch3
pad2.Length = Q("0.1 in")

# Sketch on XY plane
sketch4 = doc.addObject("Sketcher::SketchObject", "Sketch003")
body.addObject(sketch4)
sketch4.AttachmentSupport = (doc.XY_Plane, [""])
sketch4.MapMode = "FlatFace"
sketch4.addGeometry([
    Part.ArcOfCircle(Part.Circle(App.Vector(-67.3, 85.1, 0), App.Vector(0, 0, 1), 1.3), math.radians(-90), math.radians(0)),  # 0
    Part.ArcOfCircle(Part.Circle(App.Vector(-67.3, 85.1, 0), App.Vector(0, 0, 1), 1.3), math.radians(90), math.radians(270)),  # 1
    Part.ArcOfCircle(Part.Circle(App.Vector(-67.3, 85.1, 0), App.Vector(0, 0, 1), 1.3), math.radians(0), math.radians(90)),  # 2
    Part.ArcOfCircle(Part.Circle(App.Vector(-67.3, 62.2, 0), App.Vector(0, 0, 1), 1.3), math.radians(-90), math.radians(0)),  # 3
    Part.ArcOfCircle(Part.Circle(App.Vector(-67.3, 62.2, 0), App.Vector(0, 0, 1), 1.3), math.radians(90), math.radians(270)),  # 4
    Part.ArcOfCircle(Part.Circle(App.Vector(-67.3, 62.2, 0), App.Vector(0, 0, 1), 1.3), math.radians(0), math.radians(90)),  # 5
    Part.ArcOfCircle(Part.Circle(App.Vector(-67.3, 33, 0), App.Vector(0, 0, 1), 1.3), math.radians(-90), math.radians(0)),  # 6
    Part.ArcOfCircle(Part.Circle(App.Vector(-67.3, 33, 0), App.Vector(0, 0, 1), 1.3), math.radians(90), math.radians(270)),  # 7
    Part.ArcOfCircle(Part.Circle(App.Vector(-67.3, 33, 0), App.Vector(0, 0, 1), 1.3), math.radians(0), math.radians(90)),  # 8
    Part.ArcOfCircle(Part.Circle(App.Vector(-67.3, 10.2, 0), App.Vector(0, 0, 1), 1.3), math.radians(0), math.radians(90)),  # 9
    Part.ArcOfCircle(Part.Circle(App.Vector(-67.3, 10.2, 0), App.Vector(0, 0, 1), 1.3), math.radians(-90), math.radians(0)),  # 10
    Part.ArcOfCircle(Part.Circle(App.Vector(-67.3, 10.2, 0), App.Vector(0, 0, 1), 1.3), math.radians(90), math.radians(270)),  # 11
    Part.ArcOfCircle(Part.Circle(App.Vector(3.8, 10.2, 0), App.Vector(0, 0, 1), 1.3), math.radians(-90), math.radians(0)),  # 12
    Part.ArcOfCircle(Part.Circle(App.Vector(3.8, 10.2, 0), App.Vector(0, 0, 1), 1.3), math.radians(90), math.radians(270)),  # 13
    Part.ArcOfCircle(Part.Circle(App.Vector(3.8, 10.2, 0), App.Vector(0, 0, 1), 1.3), math.radians(0), math.radians(90)),  # 14
    Part.ArcOfCircle(Part.Circle(App.Vector(3.8, 33, 0), App.Vector(0, 0, 1), 1.3), math.radians(-90), math.radians(0)),  # 15
    Part.ArcOfCircle(Part.Circle(App.Vector(3.8, 33, 0), App.Vector(0, 0, 1), 1.3), math.radians(90), math.radians(270)),  # 16
    Part.ArcOfCircle(Part.Circle(App.Vector(3.8, 33, 0), App.Vector(0, 0, 1), 1.3), math.radians(0), math.radians(90)),  # 17
    Part.ArcOfCircle(Part.Circle(App.Vector(3.8, 62.2, 0), App.Vector(0, 0, 1), 1.3), math.radians(-90), math.radians(0)),  # 18
    Part.ArcOfCircle(Part.Circle(App.Vector(3.8, 62.2, 0), App.Vector(0, 0, 1), 1.3), math.radians(90), math.radians(270)),  # 19
    Part.ArcOfCircle(Part.Circle(App.Vector(3.8, 62.2, 0), App.Vector(0, 0, 1), 1.3), math.radians(0), math.radians(90)),  # 20
    Part.ArcOfCircle(Part.Circle(App.Vector(3.8, 85.1, 0), App.Vector(0, 0, 1), 1.3), math.radians(-90), math.radians(0)),  # 21
    Part.ArcOfCircle(Part.Circle(App.Vector(3.8, 85.1, 0), App.Vector(0, 0, 1), 1.3), math.radians(90), math.radians(270)),  # 22
    Part.ArcOfCircle(Part.Circle(App.Vector(3.8, 85.1, 0), App.Vector(0, 0, 1), 1.3), math.radians(0), math.radians(90)),  # 23
], False)
sketch4.addConstraint([
    Sketcher.Constraint("Tangent", 0, 1, 1, 2),
    Sketcher.Constraint("Tangent", 1, 1, 2, 2),
    Sketcher.Constraint("Tangent", 2, 1, 0, 2),
    Sketcher.Constraint("Tangent", 3, 1, 4, 2),
    Sketcher.Constraint("Tangent", 4, 1, 5, 2),
    Sketcher.Constraint("Tangent", 5, 1, 3, 2),
    Sketcher.Constraint("Tangent", 6, 1, 7, 2),
    Sketcher.Constraint("Tangent", 7, 1, 8, 2),
    Sketcher.Constraint("Tangent", 8, 1, 6, 2),
    Sketcher.Constraint("Tangent", 9, 1, 10, 2),
    Sketcher.Constraint("Tangent", 10, 1, 11, 2),
    Sketcher.Constraint("Tangent", 11, 1, 9, 2),
    Sketcher.Constraint("Tangent", 12, 1, 13, 2),
    Sketcher.Constraint("Tangent", 13, 1, 14, 2),
    Sketcher.Constraint("Tangent", 14, 1, 12, 2),
    Sketcher.Constraint("Tangent", 15, 1, 16, 2),
    Sketcher.Constraint("Tangent", 16, 1, 17, 2),
    Sketcher.Constraint("Tangent", 17, 1, 15, 2),
    Sketcher.Constraint("Tangent", 18, 1, 19, 2),
    Sketcher.Constraint("Tangent", 19, 1, 20, 2),
    Sketcher.Constraint("Tangent", 20, 1, 18, 2),
    Sketcher.Constraint("Tangent", 21, 1, 22, 2),
    Sketcher.Constraint("Tangent", 22, 1, 23, 2),
    Sketcher.Constraint("Tangent", 23, 1, 21, 2),
    Sketcher.Constraint("Equal", 2, 3),
    Sketcher.Constraint("Equal", 5, 6),
    Sketcher.Constraint("Equal", 8, 9),
    Sketcher.Constraint("Equal", 11, 12),
    Sketcher.Constraint("Equal", 14, 15),
    Sketcher.Constraint("Equal", 17, 18),
    Sketcher.Constraint("Equal", 20, 21),
    Sketcher.Constraint("Horizontal", 11, 3, 12, 3),
    Sketcher.Constraint("Horizontal", 8, 3, 15, 3),
    Sketcher.Constraint("Horizontal", 5, 3, 18, 3),
    Sketcher.Constraint("Horizontal", 2, 3, 21, 3),
    Sketcher.Constraint("Horizontal", 23, 3, 2, 1),
    Sketcher.Constraint("Horizontal", 20, 3, 5, 1),
    Sketcher.Constraint("Horizontal", 17, 3, 8, 1),
    Sketcher.Constraint("Horizontal", 14, 3, 9, 1),
    Sketcher.Constraint("Horizontal", 9, 1, 14, 1),
    Sketcher.Constraint("Horizontal", 8, 1, 17, 1),
    Sketcher.Constraint("Horizontal", 5, 1, 20, 1),
    Sketcher.Constraint("Horizontal", 2, 1, 23, 1),
    Sketcher.Constraint("Vertical", 2, 3, 3, 3),
    Sketcher.Constraint("Vertical", 5, 3, 6, 3),
    Sketcher.Constraint("Vertical", 8, 3, 9, 3),
    Sketcher.Constraint("Vertical", 14, 3, 15, 3),
    Sketcher.Constraint("Vertical", 17, 3, 18, 3),
    Sketcher.Constraint("Vertical", 20, 3, 21, 3),
    Sketcher.Constraint("Vertical", 11, 3, 0, 1),
    Sketcher.Constraint("Vertical", 0, 1, 1, 1),
    Sketcher.Constraint("Vertical", 1, 1, 3, 1),
    Sketcher.Constraint("Vertical", 3, 1, 4, 1),
    Sketcher.Constraint("Vertical", 4, 1, 6, 1),
    Sketcher.Constraint("Vertical", 6, 1, 7, 1),
    Sketcher.Constraint("Vertical", 7, 1, 10, 1),
    Sketcher.Constraint("Vertical", 10, 1, 11, 1),
    Sketcher.Constraint("Vertical", 23, 3, 12, 1),
    Sketcher.Constraint("Vertical", 12, 1, 13, 1),
    Sketcher.Constraint("Vertical", 13, 1, 15, 1),
    Sketcher.Constraint("Vertical", 15, 1, 16, 1),
    Sketcher.Constraint("Vertical", 16, 1, 18, 1),
    Sketcher.Constraint("Vertical", 18, 1, 19, 1),
    Sketcher.Constraint("Vertical", 19, 1, 21, 1),
    Sketcher.Constraint("Vertical", 21, 1, 22, 1),
    Sketcher.Constraint("Radius", 0, Q("0.05 in")),
    Sketcher.Constraint("DistanceY", -1, 1, 6, 3, Q("1.3 in")),
    Sketcher.Constraint("DistanceY", -1, 1, 9, 3, Q("0.4 in")),
    Sketcher.Constraint("DistanceY", -1, 1, 0, 1, Q("3.3 in")),
    Sketcher.Constraint("DistanceX", 2, 1, -1, 1, Q("2.6 in")),
    Sketcher.Constraint("DistanceY", -1, 1, 3, 1, Q("2.4 in")),
    Sketcher.Constraint("DistanceX", -1, 1, 14, 1, Q("0.2 in")),
])
pad3 = doc.addObject("PartDesign::Pad", "Pad002")
body.addObject(pad3)
pad3.Profile = sketch4
pad3.Type = "TwoLengths"
pad3.Length = Q("0.1 in")
pad3.Length2 = Q("0.15 in")

doc.recompute()
